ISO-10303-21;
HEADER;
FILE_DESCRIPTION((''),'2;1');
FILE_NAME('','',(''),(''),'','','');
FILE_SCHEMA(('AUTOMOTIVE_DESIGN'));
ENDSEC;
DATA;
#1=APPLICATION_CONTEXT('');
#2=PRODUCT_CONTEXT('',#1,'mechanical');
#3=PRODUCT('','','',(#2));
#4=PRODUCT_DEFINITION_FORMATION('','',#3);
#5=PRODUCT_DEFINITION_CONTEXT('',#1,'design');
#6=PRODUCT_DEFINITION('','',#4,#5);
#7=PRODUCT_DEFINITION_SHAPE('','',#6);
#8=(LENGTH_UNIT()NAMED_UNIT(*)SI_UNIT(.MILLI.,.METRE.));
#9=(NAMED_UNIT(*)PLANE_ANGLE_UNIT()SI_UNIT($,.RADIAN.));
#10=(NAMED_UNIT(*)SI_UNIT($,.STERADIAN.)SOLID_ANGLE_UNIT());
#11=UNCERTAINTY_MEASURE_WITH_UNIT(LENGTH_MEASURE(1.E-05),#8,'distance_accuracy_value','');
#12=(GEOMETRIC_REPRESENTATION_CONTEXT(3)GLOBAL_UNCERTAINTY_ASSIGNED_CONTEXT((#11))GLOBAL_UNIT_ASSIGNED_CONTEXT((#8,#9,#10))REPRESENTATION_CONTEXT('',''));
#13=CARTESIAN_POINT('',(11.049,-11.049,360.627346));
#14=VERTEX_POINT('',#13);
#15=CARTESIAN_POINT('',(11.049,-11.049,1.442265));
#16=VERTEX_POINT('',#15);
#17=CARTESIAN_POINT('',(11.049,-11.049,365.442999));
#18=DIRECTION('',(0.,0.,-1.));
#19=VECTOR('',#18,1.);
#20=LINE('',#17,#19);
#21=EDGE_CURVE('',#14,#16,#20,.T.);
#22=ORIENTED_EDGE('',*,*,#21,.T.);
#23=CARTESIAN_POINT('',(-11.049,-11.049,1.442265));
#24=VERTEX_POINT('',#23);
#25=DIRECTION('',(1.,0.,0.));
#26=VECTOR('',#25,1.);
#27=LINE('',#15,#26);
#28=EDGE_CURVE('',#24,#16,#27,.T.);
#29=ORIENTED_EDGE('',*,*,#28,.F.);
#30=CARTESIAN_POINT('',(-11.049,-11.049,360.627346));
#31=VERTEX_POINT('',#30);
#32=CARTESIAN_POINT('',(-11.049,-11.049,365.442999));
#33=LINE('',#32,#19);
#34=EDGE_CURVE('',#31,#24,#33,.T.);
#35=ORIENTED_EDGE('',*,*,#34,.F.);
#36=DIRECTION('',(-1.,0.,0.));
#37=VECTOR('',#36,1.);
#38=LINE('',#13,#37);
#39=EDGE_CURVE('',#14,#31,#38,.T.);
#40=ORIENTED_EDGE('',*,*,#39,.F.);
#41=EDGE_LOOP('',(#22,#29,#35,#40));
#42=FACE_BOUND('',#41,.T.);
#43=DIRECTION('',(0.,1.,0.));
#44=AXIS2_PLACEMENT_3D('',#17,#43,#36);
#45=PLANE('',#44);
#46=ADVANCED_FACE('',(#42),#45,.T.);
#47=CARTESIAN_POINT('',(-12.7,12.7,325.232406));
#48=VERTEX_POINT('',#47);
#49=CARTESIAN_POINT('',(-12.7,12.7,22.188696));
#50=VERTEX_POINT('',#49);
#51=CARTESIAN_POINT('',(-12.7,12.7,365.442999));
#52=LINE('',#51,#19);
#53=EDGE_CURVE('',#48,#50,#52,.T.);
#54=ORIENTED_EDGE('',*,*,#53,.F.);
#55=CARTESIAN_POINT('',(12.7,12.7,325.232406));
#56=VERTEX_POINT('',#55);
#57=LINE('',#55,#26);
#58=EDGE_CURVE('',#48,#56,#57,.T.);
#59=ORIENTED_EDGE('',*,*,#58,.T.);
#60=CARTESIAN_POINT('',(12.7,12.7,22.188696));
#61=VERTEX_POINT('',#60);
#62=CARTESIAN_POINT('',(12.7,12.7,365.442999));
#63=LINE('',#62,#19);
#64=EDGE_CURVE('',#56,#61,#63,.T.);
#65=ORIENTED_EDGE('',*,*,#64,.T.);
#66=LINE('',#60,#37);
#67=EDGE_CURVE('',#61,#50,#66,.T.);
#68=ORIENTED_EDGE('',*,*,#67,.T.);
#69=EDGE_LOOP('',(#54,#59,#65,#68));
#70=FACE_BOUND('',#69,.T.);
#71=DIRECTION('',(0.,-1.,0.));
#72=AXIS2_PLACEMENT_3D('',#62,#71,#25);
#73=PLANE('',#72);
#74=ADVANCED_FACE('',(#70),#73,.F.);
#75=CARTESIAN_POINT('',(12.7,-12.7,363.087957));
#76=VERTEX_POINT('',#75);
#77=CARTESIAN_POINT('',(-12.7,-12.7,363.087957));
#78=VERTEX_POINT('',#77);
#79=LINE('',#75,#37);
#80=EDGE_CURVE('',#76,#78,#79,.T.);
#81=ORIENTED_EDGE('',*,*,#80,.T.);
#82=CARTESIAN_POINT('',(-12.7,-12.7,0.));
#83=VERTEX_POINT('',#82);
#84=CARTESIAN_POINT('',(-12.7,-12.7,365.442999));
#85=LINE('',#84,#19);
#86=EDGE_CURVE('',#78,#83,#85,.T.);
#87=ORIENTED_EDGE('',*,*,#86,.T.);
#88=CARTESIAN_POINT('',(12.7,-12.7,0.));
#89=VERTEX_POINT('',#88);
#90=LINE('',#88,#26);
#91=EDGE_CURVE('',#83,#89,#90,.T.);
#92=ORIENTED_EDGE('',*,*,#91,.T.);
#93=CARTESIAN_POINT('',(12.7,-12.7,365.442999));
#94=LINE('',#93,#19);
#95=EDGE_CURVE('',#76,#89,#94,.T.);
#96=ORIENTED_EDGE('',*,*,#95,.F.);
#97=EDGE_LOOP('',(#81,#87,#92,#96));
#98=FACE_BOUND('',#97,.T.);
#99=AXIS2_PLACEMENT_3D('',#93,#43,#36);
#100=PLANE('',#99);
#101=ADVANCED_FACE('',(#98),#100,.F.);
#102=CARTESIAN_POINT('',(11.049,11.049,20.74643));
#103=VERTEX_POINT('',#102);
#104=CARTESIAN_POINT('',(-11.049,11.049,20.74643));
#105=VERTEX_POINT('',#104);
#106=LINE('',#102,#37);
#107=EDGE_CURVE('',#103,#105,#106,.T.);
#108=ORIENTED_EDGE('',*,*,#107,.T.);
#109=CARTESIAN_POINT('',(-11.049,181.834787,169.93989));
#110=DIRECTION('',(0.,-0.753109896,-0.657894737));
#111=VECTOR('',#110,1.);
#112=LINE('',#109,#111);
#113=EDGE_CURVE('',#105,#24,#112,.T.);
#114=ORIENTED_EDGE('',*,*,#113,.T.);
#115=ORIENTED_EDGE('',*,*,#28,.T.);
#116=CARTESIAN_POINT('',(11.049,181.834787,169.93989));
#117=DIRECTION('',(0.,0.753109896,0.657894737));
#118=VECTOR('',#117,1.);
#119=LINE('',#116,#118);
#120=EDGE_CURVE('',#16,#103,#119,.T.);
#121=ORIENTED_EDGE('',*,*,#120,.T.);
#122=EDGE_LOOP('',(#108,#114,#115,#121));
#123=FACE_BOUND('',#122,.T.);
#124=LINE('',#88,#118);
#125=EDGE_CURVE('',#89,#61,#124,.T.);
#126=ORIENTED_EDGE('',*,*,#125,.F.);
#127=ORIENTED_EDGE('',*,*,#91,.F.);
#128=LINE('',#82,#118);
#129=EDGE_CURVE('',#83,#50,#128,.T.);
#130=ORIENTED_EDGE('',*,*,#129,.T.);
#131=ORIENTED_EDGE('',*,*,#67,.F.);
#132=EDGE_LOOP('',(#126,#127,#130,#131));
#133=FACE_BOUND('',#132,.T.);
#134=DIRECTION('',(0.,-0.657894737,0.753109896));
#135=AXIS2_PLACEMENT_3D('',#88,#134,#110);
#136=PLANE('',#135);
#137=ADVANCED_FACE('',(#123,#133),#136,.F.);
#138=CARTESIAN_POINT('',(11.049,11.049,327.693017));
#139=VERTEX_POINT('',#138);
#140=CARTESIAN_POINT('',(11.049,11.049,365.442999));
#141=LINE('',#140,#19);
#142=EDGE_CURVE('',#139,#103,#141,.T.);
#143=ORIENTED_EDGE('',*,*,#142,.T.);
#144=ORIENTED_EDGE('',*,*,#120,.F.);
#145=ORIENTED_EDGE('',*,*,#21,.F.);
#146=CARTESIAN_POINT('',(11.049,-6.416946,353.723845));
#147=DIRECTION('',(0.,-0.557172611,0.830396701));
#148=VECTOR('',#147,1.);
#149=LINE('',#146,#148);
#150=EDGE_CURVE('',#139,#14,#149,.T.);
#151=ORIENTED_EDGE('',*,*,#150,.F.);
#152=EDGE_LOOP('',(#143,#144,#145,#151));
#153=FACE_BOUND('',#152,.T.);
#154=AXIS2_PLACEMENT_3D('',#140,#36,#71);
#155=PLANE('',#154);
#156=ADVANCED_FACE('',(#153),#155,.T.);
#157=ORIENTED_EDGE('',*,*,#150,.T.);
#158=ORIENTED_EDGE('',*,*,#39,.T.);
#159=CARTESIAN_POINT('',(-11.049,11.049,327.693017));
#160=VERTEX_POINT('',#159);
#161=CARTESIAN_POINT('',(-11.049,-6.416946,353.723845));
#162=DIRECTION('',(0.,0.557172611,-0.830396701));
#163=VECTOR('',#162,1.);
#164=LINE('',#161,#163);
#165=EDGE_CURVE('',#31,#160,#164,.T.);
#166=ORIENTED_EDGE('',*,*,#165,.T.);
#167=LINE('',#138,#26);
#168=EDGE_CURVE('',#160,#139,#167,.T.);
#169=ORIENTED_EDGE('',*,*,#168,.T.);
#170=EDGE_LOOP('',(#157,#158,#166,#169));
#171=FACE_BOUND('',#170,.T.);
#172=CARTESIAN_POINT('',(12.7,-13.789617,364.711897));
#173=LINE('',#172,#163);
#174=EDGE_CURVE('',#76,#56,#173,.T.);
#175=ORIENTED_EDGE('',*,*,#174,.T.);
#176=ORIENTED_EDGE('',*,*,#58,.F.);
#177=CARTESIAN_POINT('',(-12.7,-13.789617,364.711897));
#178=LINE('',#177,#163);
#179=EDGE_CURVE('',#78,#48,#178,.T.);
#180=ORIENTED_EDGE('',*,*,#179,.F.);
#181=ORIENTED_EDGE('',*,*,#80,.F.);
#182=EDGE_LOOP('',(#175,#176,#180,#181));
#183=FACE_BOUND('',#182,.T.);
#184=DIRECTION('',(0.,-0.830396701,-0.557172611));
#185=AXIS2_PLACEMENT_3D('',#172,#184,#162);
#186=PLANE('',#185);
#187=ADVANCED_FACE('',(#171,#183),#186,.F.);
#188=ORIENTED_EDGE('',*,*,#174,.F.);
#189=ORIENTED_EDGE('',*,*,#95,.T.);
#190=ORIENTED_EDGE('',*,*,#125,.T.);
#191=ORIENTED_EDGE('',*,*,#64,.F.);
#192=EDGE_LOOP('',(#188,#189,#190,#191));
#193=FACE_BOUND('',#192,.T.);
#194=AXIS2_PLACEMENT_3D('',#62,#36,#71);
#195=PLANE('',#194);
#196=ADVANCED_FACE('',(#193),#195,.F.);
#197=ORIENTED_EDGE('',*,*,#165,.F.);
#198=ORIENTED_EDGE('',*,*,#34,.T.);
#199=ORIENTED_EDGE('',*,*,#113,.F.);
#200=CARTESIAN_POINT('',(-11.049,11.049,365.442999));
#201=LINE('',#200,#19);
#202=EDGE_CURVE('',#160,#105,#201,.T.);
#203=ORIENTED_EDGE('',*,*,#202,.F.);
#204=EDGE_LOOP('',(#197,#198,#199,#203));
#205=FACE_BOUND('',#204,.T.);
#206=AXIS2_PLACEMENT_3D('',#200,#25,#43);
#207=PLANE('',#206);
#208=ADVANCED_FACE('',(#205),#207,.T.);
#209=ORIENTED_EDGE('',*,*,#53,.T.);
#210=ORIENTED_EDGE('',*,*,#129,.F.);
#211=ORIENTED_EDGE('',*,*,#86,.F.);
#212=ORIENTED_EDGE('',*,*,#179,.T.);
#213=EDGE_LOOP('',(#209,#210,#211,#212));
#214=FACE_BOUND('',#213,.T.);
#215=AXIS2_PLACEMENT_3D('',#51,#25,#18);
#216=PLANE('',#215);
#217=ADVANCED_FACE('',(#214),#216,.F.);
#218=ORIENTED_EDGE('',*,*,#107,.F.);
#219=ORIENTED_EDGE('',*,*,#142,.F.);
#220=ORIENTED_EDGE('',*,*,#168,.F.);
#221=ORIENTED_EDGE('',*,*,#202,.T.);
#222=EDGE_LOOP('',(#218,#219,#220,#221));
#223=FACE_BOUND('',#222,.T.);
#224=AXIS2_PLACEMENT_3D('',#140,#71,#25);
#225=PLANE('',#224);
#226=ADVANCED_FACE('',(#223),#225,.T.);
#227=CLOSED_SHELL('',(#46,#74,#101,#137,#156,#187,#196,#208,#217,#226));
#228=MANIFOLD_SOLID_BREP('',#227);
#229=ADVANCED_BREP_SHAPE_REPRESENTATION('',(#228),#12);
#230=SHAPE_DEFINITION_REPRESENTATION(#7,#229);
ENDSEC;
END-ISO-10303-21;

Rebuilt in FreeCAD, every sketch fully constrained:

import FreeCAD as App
import Part
import Sketcher
Q = App.Units.Quantity

doc = App.newDocument("Part")
params = doc.addObject("Spreadsheet::Sheet", "Params")
for row, (alias, value) in enumerate([
    ("sketch1_width", "1 in"),
    ("sketch1_width2", "0.87 in"),
    ("pad1_length", "365.442999 mm"),
    ("sketch2_width", "1 in"),
], start=1):
    params.set(f"A{row}", alias)
    params.set(f"B{row}", "=" + value)
    params.setAlias(f"B{row}", alias)

body = doc.addObject("PartDesign::Body", "Body")

sketch1 = body.newObject("Sketcher::SketchObject", "Sketch")
sketch1.AttachmentSupport = (doc.getObject("XY_Plane"), [""])
sketch1.MapMode = "FlatFace"
sketch1.addGeometry([
    Part.LineSegment(App.Vector(-12.7, 12.7, 0), App.Vector(-12.7, -12.7, 0)),
    Part.LineSegment(App.Vector(-12.7, -12.7, 0), App.Vector(12.7, -12.7, 0)),
    Part.LineSegment(App.Vector(12.7, -12.7, 0), App.Vector(12.7, 12.7, 0)),
    Part.LineSegment(App.Vector(12.7, 12.7, 0), App.Vector(-12.7, 12.7, 0)),
    Part.LineSegment(App.Vector(11.049, -11.049, 0), App.Vector(-11.049, -11.049, 0)),
    Part.LineSegment(App.Vector(-11.049, -11.049, 0), App.Vector(-11.049, 11.049, 0)),
    Part.LineSegment(App.Vector(-11.049, 11.049, 0), App.Vector(11.049, 11.049, 0)),
    Part.LineSegment(App.Vector(11.049, 11.049, 0), App.Vector(11.049, -11.049, 0)),
], False)
sketch1.addConstraint([
    Sketcher.Constraint("Coincident", 0, 2, 1, 1),
    Sketcher.Constraint("Coincident", 1, 2, 2, 1),
    Sketcher.Constraint("Coincident", 2, 2, 3, 1),
    Sketcher.Constraint("Coincident", 3, 2, 0, 1),
    Sketcher.Constraint("Coincident", 4, 2, 5, 1),
    Sketcher.Constraint("Coincident", 5, 2, 6, 1),
    Sketcher.Constraint("Coincident", 6, 2, 7, 1),
    Sketcher.Constraint("Coincident", 7, 2, 4, 1),
    Sketcher.Constraint("Vertical", 0),
    Sketcher.Constraint("Horizontal", 1),
    Sketcher.Constraint("Vertical", 2),
    Sketcher.Constraint("Horizontal", 3),
    Sketcher.Constraint("Horizontal", 4),
    Sketcher.Constraint("Vertical", 5),
    Sketcher.Constraint("Horizontal", 6),
    Sketcher.Constraint("Vertical", 7),
    Sketcher.Constraint("Symmetric", 0, 2, 2, 2, -1, 1),
    Sketcher.Constraint("Symmetric", 4, 2, 6, 2, -1, 1),
    Sketcher.Constraint("Equal", 3, 0),
    Sketcher.Constraint("Equal", 6, 5),
    Sketcher.Constraint("DistanceX", 1, 1, 1, 2, Q("1 in")),
    Sketcher.Constraint("DistanceX", 4, 2, 4, 1, Q("0.87 in")),
])
sketch1.setExpression("Constraints[20]", "Params.sketch1_width")
sketch1.setExpression("Constraints[21]", "Params.sketch1_width2")
pad1 = body.newObject("PartDesign::Pad", "Pad")
pad1.Profile = sketch1
pad1.setExpression("Length", "Params.pad1_length")

sketch2 = body.newObject("Sketcher::SketchObject", "Sketch001")
sketch2.Placement = App.Placement(App.Vector(0, 132.217061, 169.900699), App.Rotation(App.Vector(-1, 0, 0), App.Vector(0, 0.830396701, 0.557172611), App.Vector(0, 0.557172611, -0.830396701), "ZXY"))
sketch2.addGeometry([
    Part.LineSegment(App.Vector(-12.7, 12.7, 0), App.Vector(-12.7, -12.7, 0)),
    Part.LineSegment(App.Vector(-12.7, -12.7, 0), App.Vector(12.7, -12.7, 0)),
    Part.LineSegment(App.Vector(12.7, -12.7, 0), App.Vector(12.7, 12.7, 0)),
    Part.LineSegment(App.Vector(12.7, 12.7, 0), App.Vector(-12.7, 12.7, 0)),
], False)
sketch2.addConstraint([
    Sketcher.Constraint("Coincident", 0, 2, 1, 1),
    Sketcher.Constraint("Coincident", 1, 2, 2, 1),
    Sketcher.Constraint("Coincident", 2, 2, 3, 1),
    Sketcher.Constraint("Coincident", 3, 2, 0, 1),
    Sketcher.Constraint("Vertical", 0),
    Sketcher.Constraint("Horizontal", 1),
    Sketcher.Constraint("Vertical", 2),
    Sketcher.Constraint("Horizontal", 3),
    Sketcher.Constraint("Symmetric", 0, 2, 2, 2, -1, 1),
    Sketcher.Constraint("Equal", 3, 0),
    Sketcher.Constraint("DistanceX", 1, 1, 1, 2, Q("1 in")),
])
sketch2.setExpression("Constraints[10]", "Params.sketch2_width")
pocket1 = body.newObject("PartDesign::Pocket", "Pocket")
pocket1.Profile = sketch2
pocket1.Type = "ThroughAll"

sketch3 = body.newObject("Sketcher::SketchObject", "Sketch002")
sketch3.AttachmentSupport = (doc.getObject("YZ_Plane"), [""])
sketch3.MapMode = "FlatFace"
sketch3.AttachmentOffset = App.Placement(App.Vector(0, 0, -0.5 * 25.4), App.Rotation())
sketch3.addGeometry([
    Part.LineSegment(App.Vector(-12.7, 0, 0), App.Vector(17.048162, 25.987123, 0)),
    Part.LineSegment(App.Vector(17.048162, 25.987123, 0), App.Vector(20.823214, 0, 0)),
    Part.LineSegment(App.Vector(20.823214, 0, 0), App.Vector(-12.7, 0, 0)),
], False)
sketch3.addConstraint([
    Sketcher.Constraint("Coincident", 0, 2, 1, 1),
    Sketcher.Constraint("Coincident", 1, 2, 2, 1),
    Sketcher.Constraint("Coincident", 2, 2, 0, 1),
    Sketcher.Constraint("Horizontal", 2),
    Sketcher.Constraint("PointOnObject", 1, 2, -1),
    Sketcher.Constraint("DistanceX", 2, 2, -1, 1, Q("0.5 in")),
    Sketcher.Constraint("DistanceX", 2, 2, 2, 1, 33.523214),
    Sketcher.Constraint("DistanceX", 0, 2, 1, 2, 3.775051),
    Sketcher.Constraint("Distance", 0, 39.500427),
])
pocket2 = body.newObject("PartDesign::Pocket", "Pocket001")
pocket2.Profile = sketch3
pocket2.Type = "ThroughAll"
pocket2.Reversed = True

doc.recompute()
